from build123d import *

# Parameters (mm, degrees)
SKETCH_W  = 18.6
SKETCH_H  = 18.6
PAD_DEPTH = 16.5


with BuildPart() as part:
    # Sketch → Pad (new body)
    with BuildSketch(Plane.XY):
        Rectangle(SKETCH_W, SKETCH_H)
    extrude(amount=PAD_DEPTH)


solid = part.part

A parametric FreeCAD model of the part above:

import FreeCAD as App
import Part
import Sketcher
Q = App.Units.Quantity

doc = App.newDocument("Part")
body = doc.addObject("PartDesign::Body", "Body")

sketch1 = body.newObject("Sketcher::SketchObject", "Sketch")
sketch1.AttachmentSupport = (doc.getObject("XY_Plane"), [""])
sketch1.MapMode = "FlatFace"
sketch1.addGeometry([
    Part.LineSegment(App.Vector(-9.3, 9.3, 0), App.Vector(-9.3, -9.3, 0)),
    Part.LineSegment(App.Vector(-9.3, -9.3, 0), App.Vector(9.3, -9.3, 0)),
    Part.LineSegment(App.Vector(9.3, -9.3, 0), App.Vector(9.3, 9.3, 0)),
    Part.LineSegment(App.Vector(9.3, 9.3, 0), App.Vector(-9.3, 9.3, 0)),
], False)
sketch1.addConstraint([
    Sketcher.Constraint("Coincident", 0, 2, 1, 1),
    Sketcher.Constraint("Coincident", 1, 2, 2, 1),
    Sketcher.Constraint("Coincident", 2, 2, 3, 1),
    Sketcher.Constraint("Coincident", 3, 2, 0, 1),
    Sketcher.Constraint("Vertical", 0),
    Sketcher.Constraint("Horizontal", 1),
    Sketcher.Constraint("Vertical", 2),
    Sketcher.Constraint("Horizontal", 3),
    Sketcher.Constraint("Symmetric", 0, 2, 2, 2, -1, 1),
    Sketcher.Constraint("Equal", 3, 0),
    Sketcher.Constraint("DistanceX", 1, 1, 1, 2, Q("18.6 mm")),
])
pad1 = body.newObject("PartDesign::Pad", "Pad")
pad1.Profile = sketch1
pad1.Length = 16.5

doc.recompute()
